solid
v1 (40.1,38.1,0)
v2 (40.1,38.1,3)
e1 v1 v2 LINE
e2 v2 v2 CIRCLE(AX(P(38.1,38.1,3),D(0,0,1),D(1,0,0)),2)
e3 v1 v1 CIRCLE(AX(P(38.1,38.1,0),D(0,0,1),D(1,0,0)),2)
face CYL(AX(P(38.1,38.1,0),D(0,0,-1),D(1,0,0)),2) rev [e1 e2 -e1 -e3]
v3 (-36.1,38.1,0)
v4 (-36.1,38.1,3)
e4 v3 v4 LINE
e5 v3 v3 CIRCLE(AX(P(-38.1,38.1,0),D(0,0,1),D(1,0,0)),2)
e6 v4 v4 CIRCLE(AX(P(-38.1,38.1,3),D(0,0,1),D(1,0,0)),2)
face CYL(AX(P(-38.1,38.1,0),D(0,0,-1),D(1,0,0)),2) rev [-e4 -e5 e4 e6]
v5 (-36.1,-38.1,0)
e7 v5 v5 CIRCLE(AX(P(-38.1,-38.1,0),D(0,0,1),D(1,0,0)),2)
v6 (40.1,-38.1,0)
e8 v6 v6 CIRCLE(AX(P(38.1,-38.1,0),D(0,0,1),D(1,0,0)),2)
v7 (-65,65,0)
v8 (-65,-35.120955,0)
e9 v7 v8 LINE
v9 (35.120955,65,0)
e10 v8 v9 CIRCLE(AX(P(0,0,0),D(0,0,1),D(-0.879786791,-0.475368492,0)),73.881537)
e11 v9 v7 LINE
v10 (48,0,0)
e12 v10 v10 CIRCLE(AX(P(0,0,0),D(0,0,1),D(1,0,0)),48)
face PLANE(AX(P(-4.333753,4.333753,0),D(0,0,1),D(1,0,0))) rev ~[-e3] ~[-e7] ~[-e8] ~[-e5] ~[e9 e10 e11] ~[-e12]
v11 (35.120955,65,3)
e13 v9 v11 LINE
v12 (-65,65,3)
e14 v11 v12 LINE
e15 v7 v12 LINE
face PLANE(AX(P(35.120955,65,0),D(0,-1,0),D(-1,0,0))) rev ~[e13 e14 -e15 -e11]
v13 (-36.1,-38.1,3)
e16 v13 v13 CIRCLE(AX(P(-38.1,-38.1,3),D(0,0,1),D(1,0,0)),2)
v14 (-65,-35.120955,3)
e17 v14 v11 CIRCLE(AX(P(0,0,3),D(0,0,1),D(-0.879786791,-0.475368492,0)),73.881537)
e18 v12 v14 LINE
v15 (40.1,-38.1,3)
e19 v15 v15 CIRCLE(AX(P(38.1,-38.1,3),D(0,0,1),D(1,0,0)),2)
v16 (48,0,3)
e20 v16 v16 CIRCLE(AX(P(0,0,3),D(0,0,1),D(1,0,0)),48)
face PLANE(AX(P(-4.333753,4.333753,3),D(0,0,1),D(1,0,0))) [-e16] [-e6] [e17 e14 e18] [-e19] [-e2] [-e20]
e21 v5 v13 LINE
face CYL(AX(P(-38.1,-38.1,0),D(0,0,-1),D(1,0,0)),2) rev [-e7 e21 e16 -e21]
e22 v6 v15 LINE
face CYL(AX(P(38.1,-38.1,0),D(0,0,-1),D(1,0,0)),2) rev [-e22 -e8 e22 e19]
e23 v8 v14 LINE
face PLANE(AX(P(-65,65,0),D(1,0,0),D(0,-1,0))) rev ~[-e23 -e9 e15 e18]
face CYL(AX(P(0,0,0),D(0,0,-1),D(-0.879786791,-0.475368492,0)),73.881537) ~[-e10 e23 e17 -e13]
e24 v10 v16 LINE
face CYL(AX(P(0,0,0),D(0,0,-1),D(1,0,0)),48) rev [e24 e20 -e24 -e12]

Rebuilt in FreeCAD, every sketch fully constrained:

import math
import FreeCAD as App
import Part
import Sketcher

V = App.Vector
Q = App.Units.Quantity

doc = App.newDocument("Part")
body = doc.addObject("PartDesign::Body", "Body")

# Sketch on XY plane
sketch1 = body.newObject("Sketcher::SketchObject", "Sketch")
sketch1.AttachmentSupport = (doc.getObject("XY_Plane"), [""])
sketch1.MapMode = "FlatFace"
sketch1.addGeometry([
    Part.LineSegment(V(-65, 65, 0), V(-65, -35.120955, 0)),  # 0
    Part.ArcOfCircle(Part.Circle(V(0, 0, 0), V(0, 0, 1), 73.881537), math.radians(-151.616655), math.radians(61.616655)),  # 1
    Part.LineSegment(V(35.120955, 65, 0), V(-65, 65, 0)),  # 2
    Part.Circle(V(-38.1, -38.1, 0), V(0, 0, 1), 2),  # 3
    Part.Circle(V(38.1, -38.1, 0), V(0, 0, 1), 2),  # 4
    Part.Circle(V(-38.1, 38.1, 0), V(0, 0, 1), 2),  # 5
    Part.Circle(V(0, 0, 0), V(0, 0, 1), 48),  # 6
    Part.Circle(V(38.1, 38.1, 0), V(0, 0, 1), 2),  # 7
], False)
sketch1.addConstraint([
    Sketcher.Constraint("Coincident", 0, 2, 1, 1),
    Sketcher.Constraint("Coincident", 1, 2, 2, 1),
    Sketcher.Constraint("Coincident", 2, 2, 0, 1),
    Sketcher.Constraint("Vertical", 0),
    Sketcher.Constraint("Horizontal", 2),
    Sketcher.Constraint("Coincident", 1, 3, -1, 1),
    Sketcher.Constraint("Coincident", 6, 3, -1, 1),
    Sketcher.Constraint("Equal", 3, 4),
    Sketcher.Constraint("Equal", 4, 5),
    Sketcher.Constraint("Equal", 5, 7),
    Sketcher.Constraint("Symmetric", 4, 3, 5, 3, -1, 1),
    Sketcher.Constraint("Symmetric", 3, 3, 7, 3, -1, 1),
    Sketcher.Constraint("Symmetric", 3, 3, 4, 3, -2),
    Sketcher.Constraint("Equal", 2, 0),
    Sketcher.Constraint("Diameter", 3, Q("4 mm")),
    Sketcher.Constraint("Diameter", 6, Q("96 mm")),
    Sketcher.Constraint("DistanceX", 0, 2, -1, 1, Q("65 mm")),
    Sketcher.Constraint("DistanceX", 3, 3, -1, 1, Q("38.1 mm")),
    Sketcher.Constraint("DistanceY", 3, 3, -1, 1, Q("38.1 mm")),
    Sketcher.Constraint("Radius", 1, Q("73.881537 mm")),
])
pad1 = body.newObject("PartDesign::Pad", "Pad")
pad1.Profile = sketch1
pad1.Length = 3

doc.recompute()
